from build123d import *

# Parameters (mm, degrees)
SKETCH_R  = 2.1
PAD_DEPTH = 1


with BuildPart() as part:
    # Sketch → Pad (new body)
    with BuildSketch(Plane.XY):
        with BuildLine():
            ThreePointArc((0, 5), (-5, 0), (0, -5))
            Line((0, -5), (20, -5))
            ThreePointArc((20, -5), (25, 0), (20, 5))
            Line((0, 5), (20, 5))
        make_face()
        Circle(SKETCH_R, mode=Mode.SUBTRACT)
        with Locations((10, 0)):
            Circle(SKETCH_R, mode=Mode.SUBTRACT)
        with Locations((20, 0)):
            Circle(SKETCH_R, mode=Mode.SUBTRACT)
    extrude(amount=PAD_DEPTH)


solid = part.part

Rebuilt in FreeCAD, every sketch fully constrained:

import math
import FreeCAD as App
import Part
import Sketcher

V = App.Vector
Q = App.Units.Quantity

doc = App.newDocument("Part")
body = doc.addObject("PartDesign::Body", "Body")

# Sketch on XY plane
sketch1 = body.newObject("Sketcher::SketchObject", "Sketch")
sketch1.AttachmentSupport = (doc.getObject("XY_Plane"), [""])
sketch1.MapMode = "FlatFace"
sketch1.addGeometry(Part.ArcOfCircle(Part.Circle(V(0, 0, 0), V(0, 0, 1), 5), math.radians(90), math.radians(270)), False)
sketch1.addGeometry(Part.LineSegment(V(0, -5, 0), V(20, -5, 0)), False)
sketch1.addGeometry(Part.ArcOfCircle(Part.Circle(V(20, 0, 0), V(0, 0, 1), 5), math.radians(-90), math.radians(90)), False)
sketch1.addGeometry(Part.LineSegment(V(20, 5, 0), V(0, 5, 0)), False)
sketch1.addGeometry(Part.Circle(V(0, 0, 0), V(0, 0, 1), 2.1), False)
sketch1.addGeometry(Part.Circle(V(10, 0, 0), V(0, 0, 1), 2.1), False)
sketch1.addGeometry(Part.Circle(V(20, 0, 0), V(0, 0, 1), 2.1), False)
sketch1.addConstraint(Sketcher.Constraint("Tangent", 0, 2, 1, 1))
sketch1.addConstraint(Sketcher.Constraint("Tangent", 1, 2, 2, 1))
sketch1.addConstraint(Sketcher.Constraint("Tangent", 2, 2, 3, 1))
sketch1.addConstraint(Sketcher.Constraint("Tangent", 3, 2, 0, 1))
sketch1.addConstraint(Sketcher.Constraint("Horizontal", 1))
sketch1.addConstraint(Sketcher.Constraint("Horizontal", 3))
sketch1.addConstraint(Sketcher.Constraint("Coincident", 0, 3, -1, 1))
sketch1.addConstraint(Sketcher.Constraint("Coincident", 4, 3, -1, 1))
sketch1.addConstraint(Sketcher.Constraint("Coincident", 6, 3, 2, 3))
sketch1.addConstraint(Sketcher.Constraint("Equal", 4, 5))
sketch1.addConstraint(Sketcher.Constraint("Equal", 5, 6))
sketch1.addConstraint(Sketcher.Constraint("PointOnObject", 5, 3, -1))
sketch1.addConstraint(Sketcher.Constraint("Radius", 0, Q("5 mm")))
sketch1.addConstraint(Sketcher.Constraint("Diameter", 4, Q("4.2 mm")))
sketch1.addConstraint(Sketcher.Constraint("DistanceX", 1, 1, 1, 2, Q("20 mm")))
sketch1.addConstraint(Sketcher.Constraint("DistanceX", -1, 1, 5, 3, Q("10 mm")))
pad1 = body.newObject("PartDesign::Pad", "Pad")
pad1.Profile = sketch1
pad1.Length = 1

doc.recompute()
